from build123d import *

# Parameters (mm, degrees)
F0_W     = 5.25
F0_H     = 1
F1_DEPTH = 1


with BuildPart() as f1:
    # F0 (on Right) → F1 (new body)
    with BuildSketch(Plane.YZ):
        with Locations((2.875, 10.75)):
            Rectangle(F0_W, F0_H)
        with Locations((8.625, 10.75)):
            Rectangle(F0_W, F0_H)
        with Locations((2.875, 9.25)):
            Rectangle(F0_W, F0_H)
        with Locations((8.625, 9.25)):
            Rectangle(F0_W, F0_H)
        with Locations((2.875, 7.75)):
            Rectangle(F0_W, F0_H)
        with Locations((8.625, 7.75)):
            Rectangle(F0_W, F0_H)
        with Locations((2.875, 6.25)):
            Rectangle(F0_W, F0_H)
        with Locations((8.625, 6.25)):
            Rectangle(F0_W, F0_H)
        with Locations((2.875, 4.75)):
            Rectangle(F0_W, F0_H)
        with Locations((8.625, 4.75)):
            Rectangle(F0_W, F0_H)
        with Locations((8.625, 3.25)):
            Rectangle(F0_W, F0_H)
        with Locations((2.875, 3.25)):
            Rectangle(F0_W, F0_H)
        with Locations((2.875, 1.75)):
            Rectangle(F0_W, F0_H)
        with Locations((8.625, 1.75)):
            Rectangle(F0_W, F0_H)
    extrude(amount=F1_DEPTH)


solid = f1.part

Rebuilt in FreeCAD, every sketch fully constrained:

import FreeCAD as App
import Part
import Sketcher
from FreeCAD import Vector


def add_polygon(sketch, points):
    """Adds a closed chain of lines whose ends are joined by coincident constraints."""
    first, n = sketch.GeometryCount, len(points)
    for a, b in zip(points, points[1:] + points[:1]):
        sketch.addGeometry(Part.LineSegment(App.Vector(*a, 0), App.Vector(*b, 0)), False)
    for i in range(n):
        sketch.addConstraint(Sketcher.Constraint("Coincident", first + i, 2, first + (i + 1) % n, 1))

doc = App.newDocument("Part")
params = doc.addObject("Spreadsheet::Sheet", "Params")
for row, (alias, value) in enumerate([
    ("sketch1_height", "1 mm"),
    ("sketch1_width", "5.25 mm"),
    ("pad1_length", "1 mm"),
], start=1):
    params.set(f"A{row}", alias)
    params.set(f"B{row}", "=" + value)
    params.setAlias(f"B{row}", alias)

body = doc.addObject("PartDesign::Body", "Body")
body.AllowCompound = True

# Sketch on YZ plane
sketch1 = body.newObject("Sketcher::SketchObject", "Sketch")
sketch1.AttachmentSupport = (doc.getObject("YZ_Plane"), [""])
sketch1.MapMode = "FlatFace"
add_polygon(sketch1, [(0.2, 11.2), (0.2, 10.2), (5.5, 10.2), (5.5, 11.2)])  # lines 0-3
add_polygon(sketch1, [(6, 11.2), (6, 10.2), (11.2, 10.2), (11.2, 11.2)])  # lines 4-7
add_polygon(sketch1, [(0.2, 9.8), (0.2, 8.8), (5.5, 8.8), (5.5, 9.8)])  # lines 8-11
add_polygon(sketch1, [(6, 9.8), (6, 8.8), (11.2, 8.8), (11.2, 9.8)])  # lines 12-15
add_polygon(sketch1, [(0.2, 8.2), (0.2, 7.2), (5.5, 7.2), (5.5, 8.2)])  # lines 16-19
add_polygon(sketch1, [(6, 8.2), (6, 7.2), (11.2, 7.2), (11.2, 8.2)])  # lines 20-23
add_polygon(sketch1, [(0.2, 6.8), (0.2, 5.8), (5.5, 5.8), (5.5, 6.8)])  # lines 24-27
add_polygon(sketch1, [(6, 6.8), (6, 5.8), (11.2, 5.8), (11.2, 6.8)])  # lines 28-31
add_polygon(sketch1, [(0.2, 5.2), (0.2, 4.2), (5.5, 4.2), (5.5, 5.2)])  # lines 32-35
add_polygon(sketch1, [(6, 5.2), (6, 4.2), (11.2, 4.2), (11.2, 5.2)])  # lines 36-39
add_polygon(sketch1, [(6, 3.8), (6, 2.8), (11.2, 2.8), (11.2, 3.8)])  # lines 40-43
add_polygon(sketch1, [(0.2, 3.8), (0.2, 2.8), (5.5, 2.8), (5.5, 3.8)])  # lines 44-47
add_polygon(sketch1, [(0.2, 2.2), (0.2, 1.2), (5.5, 1.2), (5.5, 2.2)])  # lines 48-51
add_polygon(sketch1, [(6, 2.2), (6, 1.2), (11.2, 1.2), (11.2, 2.2)])  # lines 52-55
sketch1.addConstraint([
    Sketcher.Constraint("Vertical", 0),
    Sketcher.Constraint("Horizontal", 1),
    Sketcher.Constraint("Vertical", 2),
    Sketcher.Constraint("Horizontal", 3),
    Sketcher.Constraint("Vertical", 4),
    Sketcher.Constraint("Horizontal", 5),
    Sketcher.Constraint("Vertical", 6),
    Sketcher.Constraint("Horizontal", 7),
    Sketcher.Constraint("Vertical", 8),
    Sketcher.Constraint("Horizontal", 9),
    Sketcher.Constraint("Vertical", 10),
    Sketcher.Constraint("Horizontal", 11),
    Sketcher.Constraint("Vertical", 12),
    Sketcher.Constraint("Horizontal", 13),
    Sketcher.Constraint("Vertical", 14),
    Sketcher.Constraint("Horizontal", 15),
    Sketcher.Constraint("Vertical", 16),
    Sketcher.Constraint("Horizontal", 17),
    Sketcher.Constraint("Vertical", 18),
    Sketcher.Constraint("Horizontal", 19),
    Sketcher.Constraint("Vertical", 20),
    Sketcher.Constraint("Horizontal", 21),
    Sketcher.Constraint("Vertical", 22),
    Sketcher.Constraint("Horizontal", 23),
    Sketcher.Constraint("Vertical", 24),
    Sketcher.Constraint("Horizontal", 25),
    Sketcher.Constraint("Vertical", 26),
    Sketcher.Constraint("Horizontal", 27),
    Sketcher.Constraint("Vertical", 28),
    Sketcher.Constraint("Horizontal", 29),
    Sketcher.Constraint("Vertical", 30),
    Sketcher.Constraint("Horizontal", 31),
    Sketcher.Constraint("Vertical", 32),
    Sketcher.Constraint("Horizontal", 33),
    Sketcher.Constraint("Vertical", 34),
    Sketcher.Constraint("Horizontal", 35),
    Sketcher.Constraint("Vertical", 36),
    Sketcher.Constraint("Horizontal", 37),
    Sketcher.Constraint("Vertical", 38),
    Sketcher.Constraint("Horizontal", 39),
    Sketcher.Constraint("Vertical", 40),
    Sketcher.Constraint("Horizontal", 41),
    Sketcher.Constraint("Vertical", 42),
    Sketcher.Constraint("Horizontal", 43),
    Sketcher.Constraint("Vertical", 44),
    Sketcher.Constraint("Horizontal", 45),
    Sketcher.Constraint("Vertical", 46),
    Sketcher.Constraint("Horizontal", 47),
    Sketcher.Constraint("Vertical", 48),
    Sketcher.Constraint("Horizontal", 49),
    Sketcher.Constraint("Vertical", 50),
    Sketcher.Constraint("Horizontal", 51),
    Sketcher.Constraint("Vertical", 52),
    Sketcher.Constraint("Horizontal", 53),
    Sketcher.Constraint("Vertical", 54),
    Sketcher.Constraint("Horizontal", 55),
    Sketcher.Constraint("Horizontal", 1, 2, 4, 2),
    Sketcher.Constraint("Horizontal", 3, 2, 6, 2),
    Sketcher.Constraint("Horizontal", 9, 2, 12, 2),
    Sketcher.Constraint("Horizontal", 11, 2, 14, 2),
    Sketcher.Constraint("Horizontal", 17, 2, 20, 2),
    Sketcher.Constraint("Horizontal", 19, 2, 22, 2),
    Sketcher.Constraint("Horizontal", 25, 2, 28, 2),
    Sketcher.Constraint("Horizontal", 27, 2, 30, 2),
    Sketcher.Constraint("Horizontal", 33, 2, 36, 2),
    Sketcher.Constraint("Horizontal", 35, 2, 38, 2),
    Sketcher.Constraint("Horizontal", 41, 2, 44, 2),
    Sketcher.Constraint("Horizontal", 43, 2, 46, 2),
    Sketcher.Constraint("Horizontal", 49, 2, 52, 2),
    Sketcher.Constraint("Horizontal", 51, 2, 54, 2),
    Sketcher.Constraint("Vertical", 3, 2, 8, 2),
    Sketcher.Constraint("Vertical", 2, 2, 9, 2),
    Sketcher.Constraint("Vertical", 7, 2, 12, 2),
    Sketcher.Constraint("Vertical", 6, 2, 13, 2),
    Sketcher.Constraint("Vertical", 11, 2, 16, 2),
    Sketcher.Constraint("Vertical", 10, 2, 17, 2),
    Sketcher.Constraint("Vertical", 15, 2, 20, 2),
    Sketcher.Constraint("Vertical", 14, 2, 21, 2),
    Sketcher.Constraint("Vertical", 19, 2, 24, 2),
    Sketcher.Constraint("Vertical", 18, 2, 25, 2),
    Sketcher.Constraint("Vertical", 23, 2, 28, 2),
    Sketcher.Constraint("Vertical", 22, 2, 29, 2),
    Sketcher.Constraint("Vertical", 27, 2, 32, 2),
    Sketcher.Constraint("Vertical", 26, 2, 33, 2),
    Sketcher.Constraint("Vertical", 31, 2, 36, 2),
    Sketcher.Constraint("Vertical", 30, 2, 37, 2),
    Sketcher.Constraint("Vertical", 39, 2, 40, 2),
    Sketcher.Constraint("Vertical", 38, 2, 41, 2),
    Sketcher.Constraint("Vertical", 35, 2, 44, 2),
    Sketcher.Constraint("Vertical", 34, 2, 45, 2),
    Sketcher.Constraint("Vertical", 47, 2, 48, 2),
    Sketcher.Constraint("Vertical", 46, 2, 49, 2),
    Sketcher.Constraint("Vertical", 43, 2, 52, 2),
    Sketcher.Constraint("Vertical", 42, 2, 53, 2),
    Sketcher.Constraint("Equal", 3, 5),
    Sketcher.Constraint("Equal", 6, 8),
    Sketcher.Constraint("Equal", 14, 16),
    Sketcher.Constraint("Equal", 22, 24),
    Sketcher.Constraint("Equal", 30, 32),
    Sketcher.Constraint("Equal", 38, 40),
    Sketcher.Constraint("Equal", 46, 48),
    Sketcher.Constraint("DistanceY", 0, 2, 0, 1, 1.0),
    Sketcher.Constraint("DistanceX", -1, 1, 4, 2, 6.0),
    Sketcher.Constraint("DistanceX", 0, 2, 5, 2, 11.0),
    Sketcher.Constraint("DistanceY", 16, 2, 0, 2, 3.0),
    Sketcher.Constraint("DistanceY", 24, 2, 8, 2, 3.0),
    Sketcher.Constraint("DistanceY", 32, 2, 16, 2, 3.0),
    Sketcher.Constraint("DistanceY", 40, 2, 28, 2, 3.0),
    Sketcher.Constraint("DistanceY", 48, 2, 32, 2, 3.0),
    Sketcher.Constraint("DistanceX", 1, 1, 1, 2, 5.25),
    Sketcher.Constraint("DistanceY", 8, 2, 0, 2, 1.5),
    Sketcher.Constraint("DistanceY", -1, 1, 0, 2, 10.25),
])
sketch1.setExpression("Constraints[157]", "Params.sketch1_height")
sketch1.setExpression("Constraints[165]", "Params.sketch1_width")
pad1 = body.newObject("PartDesign::Pad", "Pad")
pad1.Profile = sketch1
pad1.setExpression("Length", "Params.pad1_length")

doc.recompute()
